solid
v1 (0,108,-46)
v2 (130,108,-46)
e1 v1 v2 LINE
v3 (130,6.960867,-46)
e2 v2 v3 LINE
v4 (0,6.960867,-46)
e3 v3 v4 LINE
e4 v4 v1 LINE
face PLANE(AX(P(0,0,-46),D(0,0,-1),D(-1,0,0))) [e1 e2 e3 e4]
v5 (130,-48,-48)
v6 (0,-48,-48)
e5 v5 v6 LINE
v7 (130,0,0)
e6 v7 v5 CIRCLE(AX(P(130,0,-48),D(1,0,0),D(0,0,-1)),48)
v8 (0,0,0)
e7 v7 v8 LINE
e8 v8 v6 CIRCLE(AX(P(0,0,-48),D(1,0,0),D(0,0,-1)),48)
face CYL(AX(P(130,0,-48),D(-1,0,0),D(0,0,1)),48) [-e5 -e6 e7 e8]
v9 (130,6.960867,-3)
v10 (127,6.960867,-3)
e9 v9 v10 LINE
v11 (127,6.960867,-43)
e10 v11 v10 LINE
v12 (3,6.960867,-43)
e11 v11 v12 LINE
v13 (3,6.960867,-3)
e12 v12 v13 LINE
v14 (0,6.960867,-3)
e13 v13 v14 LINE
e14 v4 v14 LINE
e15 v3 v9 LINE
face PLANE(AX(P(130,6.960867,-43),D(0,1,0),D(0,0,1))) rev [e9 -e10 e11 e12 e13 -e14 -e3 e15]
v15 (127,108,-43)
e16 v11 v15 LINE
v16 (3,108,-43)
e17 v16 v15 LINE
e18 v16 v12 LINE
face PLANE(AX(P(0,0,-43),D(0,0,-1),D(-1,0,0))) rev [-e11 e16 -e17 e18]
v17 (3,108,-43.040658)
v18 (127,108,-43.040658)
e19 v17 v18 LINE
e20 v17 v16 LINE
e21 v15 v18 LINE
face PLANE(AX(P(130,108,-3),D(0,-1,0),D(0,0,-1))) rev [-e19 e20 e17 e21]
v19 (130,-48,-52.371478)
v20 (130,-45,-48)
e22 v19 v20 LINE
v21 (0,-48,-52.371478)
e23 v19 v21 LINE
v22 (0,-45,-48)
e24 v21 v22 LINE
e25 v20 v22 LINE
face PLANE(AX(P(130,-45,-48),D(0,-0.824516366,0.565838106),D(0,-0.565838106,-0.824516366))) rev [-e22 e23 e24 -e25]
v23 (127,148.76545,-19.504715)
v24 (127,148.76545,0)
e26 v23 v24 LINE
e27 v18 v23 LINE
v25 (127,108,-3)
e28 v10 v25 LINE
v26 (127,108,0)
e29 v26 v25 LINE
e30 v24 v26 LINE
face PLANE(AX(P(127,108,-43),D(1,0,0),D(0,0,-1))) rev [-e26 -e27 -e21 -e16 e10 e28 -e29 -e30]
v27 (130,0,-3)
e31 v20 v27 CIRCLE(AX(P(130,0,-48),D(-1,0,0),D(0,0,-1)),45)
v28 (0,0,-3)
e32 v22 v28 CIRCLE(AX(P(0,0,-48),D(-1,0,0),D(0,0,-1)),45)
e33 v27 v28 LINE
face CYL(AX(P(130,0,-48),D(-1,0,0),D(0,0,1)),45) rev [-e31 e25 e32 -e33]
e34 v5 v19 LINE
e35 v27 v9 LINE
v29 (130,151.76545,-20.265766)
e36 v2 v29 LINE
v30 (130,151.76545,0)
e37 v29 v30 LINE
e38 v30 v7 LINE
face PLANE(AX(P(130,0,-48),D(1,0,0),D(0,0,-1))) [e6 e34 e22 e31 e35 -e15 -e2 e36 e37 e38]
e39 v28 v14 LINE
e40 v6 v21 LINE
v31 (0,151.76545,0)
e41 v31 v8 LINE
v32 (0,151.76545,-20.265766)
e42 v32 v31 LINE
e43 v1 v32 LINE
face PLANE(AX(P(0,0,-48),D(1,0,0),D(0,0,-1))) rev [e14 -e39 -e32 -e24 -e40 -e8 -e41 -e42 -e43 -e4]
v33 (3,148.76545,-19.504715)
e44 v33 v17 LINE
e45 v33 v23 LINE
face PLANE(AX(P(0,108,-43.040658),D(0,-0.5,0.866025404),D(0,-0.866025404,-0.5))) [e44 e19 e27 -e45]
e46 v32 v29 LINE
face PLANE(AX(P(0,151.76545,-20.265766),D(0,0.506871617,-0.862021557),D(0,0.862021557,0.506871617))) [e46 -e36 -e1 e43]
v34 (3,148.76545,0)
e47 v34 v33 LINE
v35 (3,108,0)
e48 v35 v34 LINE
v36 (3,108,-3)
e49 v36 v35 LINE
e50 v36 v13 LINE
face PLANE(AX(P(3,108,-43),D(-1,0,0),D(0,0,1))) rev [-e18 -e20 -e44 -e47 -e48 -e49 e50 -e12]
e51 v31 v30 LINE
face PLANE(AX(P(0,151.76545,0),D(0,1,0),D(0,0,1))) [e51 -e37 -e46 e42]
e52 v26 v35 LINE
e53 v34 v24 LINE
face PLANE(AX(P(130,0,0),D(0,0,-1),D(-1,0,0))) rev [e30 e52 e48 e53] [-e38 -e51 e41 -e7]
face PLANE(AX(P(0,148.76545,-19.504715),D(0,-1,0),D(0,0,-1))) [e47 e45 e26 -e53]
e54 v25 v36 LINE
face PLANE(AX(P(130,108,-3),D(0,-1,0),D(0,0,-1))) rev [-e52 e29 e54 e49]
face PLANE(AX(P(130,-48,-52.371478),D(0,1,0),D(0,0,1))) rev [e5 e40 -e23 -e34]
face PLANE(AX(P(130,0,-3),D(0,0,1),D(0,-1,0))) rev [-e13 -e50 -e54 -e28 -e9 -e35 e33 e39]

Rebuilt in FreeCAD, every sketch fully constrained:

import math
import FreeCAD as App
import Part
import Sketcher
Q = App.Units.Quantity

doc = App.newDocument("Part")
body = doc.addObject("PartDesign::Body", "Body")

sketch1 = body.newObject("Sketcher::SketchObject", "Sketch")
sketch1.AttachmentSupport = (doc.getObject("YZ_Plane"), [""])
sketch1.MapMode = "FlatFace"
sketch1.addGeometry([
    Part.LineSegment(App.Vector(108, 0, 0), App.Vector(0, 0, 0)),
    Part.ArcOfCircle(Part.Circle(App.Vector(0, -48, 0), App.Vector(0, 0, 1), 48), math.radians(90), math.radians(180)),
    Part.LineSegment(App.Vector(-48, -48, 0), App.Vector(-48, -52.4, 0)),
    Part.LineSegment(App.Vector(-48, -52.4, 0), App.Vector(-45, -48, 0)),
    Part.ArcOfCircle(Part.Circle(App.Vector(0, -48, 0), App.Vector(0, 0, 1), 45), math.radians(90), math.radians(180)),
    Part.LineSegment(App.Vector(0, -3, 0), App.Vector(108, -3, 0)),
    Part.LineSegment(App.Vector(108, -3, 0), App.Vector(108, 0, 0)),
], False)
sketch1.addConstraint([
    Sketcher.Constraint("Tangent", 0, 2, 1, 1),
    Sketcher.Constraint("Tangent", 1, 2, 2, 1),
    Sketcher.Constraint("Coincident", 2, 2, 3, 1),
    Sketcher.Constraint("Coincident", 3, 2, 4, 2),
    Sketcher.Constraint("Tangent", 4, 1, 5, 1),
    Sketcher.Constraint("Coincident", 5, 2, 6, 1),
    Sketcher.Constraint("Coincident", 6, 2, 0, 1),
    Sketcher.Constraint("Horizontal", 0),
    Sketcher.Constraint("Vertical", 2),
    Sketcher.Constraint("Horizontal", 5),
    Sketcher.Constraint("Vertical", 6),
    Sketcher.Constraint("Coincident", 0, 2, -1, 1),
    Sketcher.Constraint("Coincident", 4, 3, 1, 3),
    Sketcher.Constraint("Horizontal", 1, 2, 3, 2),
    Sketcher.Constraint("Radius", 1, 48.0),
    Sketcher.Constraint("Radius", 4, 45.0),
    Sketcher.Constraint("DistanceX", 0, 2, 0, 1, 108.0),
    Sketcher.Constraint("DistanceY", 2, 2, 2, 1, 4.371478),
])
pad1 = body.newObject("PartDesign::Pad", "Pad")
pad1.Profile = sketch1
pad1.Length = 130

sketch2 = body.newObject("Sketcher::SketchObject", "Sketch001")
sketch2.AttachmentSupport = (doc.getObject("XY_Plane"), [""])
sketch2.MapMode = "FlatFace"
sketch2.AttachmentOffset = App.Placement(App.Vector(0, 0, -3), App.Rotation())
sketch2.addGeometry([
    Part.LineSegment(App.Vector(130, 108, 0), App.Vector(130, 7, 0)),
    Part.LineSegment(App.Vector(130, 7, 0), App.Vector(127, 7, 0)),
    Part.LineSegment(App.Vector(127, 7, 0), App.Vector(127, 108, 0)),
    Part.LineSegment(App.Vector(127, 108, 0), App.Vector(130, 108, 0)),
    Part.LineSegment(App.Vector(3, 108, 0), App.Vector(3, 7, 0)),
    Part.LineSegment(App.Vector(3, 7, 0), App.Vector(0, 7, 0)),
    Part.LineSegment(App.Vector(0, 7, 0), App.Vector(0, 108, 0)),
    Part.LineSegment(App.Vector(0, 108, 0), App.Vector(3, 108, 0)),
], False)
sketch2.addConstraint([
    Sketcher.Constraint("Coincident", 0, 2, 1, 1),
    Sketcher.Constraint("Coincident", 1, 2, 2, 1),
    Sketcher.Constraint("Coincident", 2, 2, 3, 1),
    Sketcher.Constraint("Coincident", 3, 2, 0, 1),
    Sketcher.Constraint("Coincident", 4, 2, 5, 1),
    Sketcher.Constraint("Coincident", 5, 2, 6, 1),
    Sketcher.Constraint("Coincident", 6, 2, 7, 1),
    Sketcher.Constraint("Coincident", 7, 2, 4, 1),
    Sketcher.Constraint("Vertical", 0),
    Sketcher.Constraint("Horizontal", 1),
    Sketcher.Constraint("Vertical", 2),
    Sketcher.Constraint("Horizontal", 3),
    Sketcher.Constraint("Vertical", 4),
    Sketcher.Constraint("Horizontal", 5),
    Sketcher.Constraint("Vertical", 6),
    Sketcher.Constraint("Horizontal", 7),
    Sketcher.Constraint("PointOnObject", 5, 2, -2),
    Sketcher.Constraint("Horizontal", 1, 2, 4, 2),
    Sketcher.Constraint("Horizontal", 3, 2, 6, 2),
    Sketcher.Constraint("Equal", 3, 5),
    Sketcher.Constraint("DistanceX", 1, 2, 1, 1, 3.0),
    Sketcher.Constraint("DistanceX", -1, 1, 0, 2, 130.0),
    Sketcher.Constraint("DistanceY", -1, 1, 2, 2, 108.0),
    Sketcher.Constraint("DistanceY", 0, 2, 0, 1, 101.039133),
])
pad2 = body.newObject("PartDesign::Pad", "Pad001")
pad2.Profile = sketch2
pad2.Length = 40
pad2.Reversed = True

sketch3 = body.newObject("Sketcher::SketchObject", "Sketch002")
sketch3.AttachmentSupport = (doc.getObject("XY_Plane"), [""])
sketch3.MapMode = "FlatFace"
sketch3.AttachmentOffset = App.Placement(App.Vector(0, 0, -43), App.Rotation())
sketch3.addGeometry([
    Part.LineSegment(App.Vector(130, 108, 0), App.Vector(130, 7, 0)),
    Part.LineSegment(App.Vector(130, 7, 0), App.Vector(0, 7, 0)),
    Part.LineSegment(App.Vector(0, 7, 0), App.Vector(0, 108, 0)),
    Part.LineSegment(App.Vector(0, 108, 0), App.Vector(130, 108, 0)),
], False)
sketch3.addConstraint([
    Sketcher.Constraint("Coincident", 0, 2, 1, 1),
    Sketcher.Constraint("Coincident", 1, 2, 2, 1),
    Sketcher.Constraint("Coincident", 2, 2, 3, 1),
    Sketcher.Constraint("Coincident", 3, 2, 0, 1),
    Sketcher.Constraint("Vertical", 0),
    Sketcher.Constraint("Horizontal", 1),
    Sketcher.Constraint("Vertical", 2),
    Sketcher.Constraint("Horizontal", 3),
    Sketcher.Constraint("PointOnObject", 1, 2, -2),
    Sketcher.Constraint("DistanceX", 1, 2, 1, 1, 130.0),
    Sketcher.Constraint("DistanceY", -1, 1, 2, 2, 108.0),
    Sketcher.Constraint("DistanceY", 0, 2, 0, 1, 101.039133),
])
pad3 = body.newObject("PartDesign::Pad", "Pad002")
pad3.Profile = sketch3
pad3.Length = 3
pad3.Reversed = True

sketch4 = body.newObject("Sketcher::SketchObject", "Sketch003")
sketch4.AttachmentSupport = (doc.getObject("YZ_Plane"), [""])
sketch4.MapMode = "FlatFace"
sketch4.AttachmentOffset = App.Placement(App.Vector(0, 0, 130), App.Rotation())
sketch4.addGeometry([
    Part.LineSegment(App.Vector(148.8, -19.5, 0), App.Vector(108, -43, 0)),
    Part.LineSegment(App.Vector(108, -43, 0), App.Vector(108, -46, 0)),
    Part.LineSegment(App.Vector(108, -46, 0), App.Vector(151.8, -20.3, 0)),
    Part.LineSegment(App.Vector(151.8, -20.3, 0), App.Vector(151.8, 0, 0)),
    Part.LineSegment(App.Vector(151.8, 0, 0), App.Vector(148.8, 0, 0)),
    Part.LineSegment(App.Vector(148.8, 0, 0), App.Vector(148.8, -19.5, 0)),
], False)
sketch4.addConstraint([
    Sketcher.Constraint("Coincident", 0, 2, 1, 1),
    Sketcher.Constraint("Coincident", 1, 2, 2, 1),
    Sketcher.Constraint("Coincident", 2, 2, 3, 1),
    Sketcher.Constraint("Coincident", 3, 2, 4, 1),
    Sketcher.Constraint("Coincident", 4, 2, 5, 1),
    Sketcher.Constraint("Coincident", 5, 2, 0, 1),
    Sketcher.Constraint("Vertical", 1),
    Sketcher.Constraint("Vertical", 3),
    Sketcher.Constraint("Horizontal", 4),
    Sketcher.Constraint("Vertical", 5),
    Sketcher.Constraint("PointOnObject", 3, 2, -1),
    Sketcher.Constraint("DistanceX", 4, 2, 4, 1, 3.0),
    Sketcher.Constraint("Angle", 0, Q("-150 deg")),
    Sketcher.Constraint("DistanceX", -1, 1, 0, 2, 108.0),
    Sketcher.Constraint("DistanceY", 1, 2, -1, 1, 46.0),
    Sketcher.Constraint("DistanceY", 1, 2, 1, 1, 2.959342),
    Sketcher.Constraint("DistanceY", 3, 1, 3, 2, 20.265766),
    Sketcher.Constraint("DistanceY", 5, 2, 5, 1, 19.504715),
])
pad4 = body.newObject("PartDesign::Pad", "Pad003")
pad4.Profile = sketch4
pad4.Length = 130
pad4.Reversed = True

sketch5 = body.newObject("Sketcher::SketchObject", "Sketch004")
sketch5.AttachmentSupport = (doc.getObject("YZ_Plane"), [""])
sketch5.MapMode = "FlatFace"
sketch5.AttachmentOffset = App.Placement(App.Vector(0, 0, 130), App.Rotation())
sketch5.addGeometry([
    Part.LineSegment(App.Vector(108, 0, 0), App.Vector(108, -43, 0)),
    Part.LineSegment(App.Vector(108, -43, 0), App.Vector(149, -20, 0)),
    Part.LineSegment(App.Vector(149, -20, 0), App.Vector(149, 0, 0)),
    Part.LineSegment(App.Vector(149, 0, 0), App.Vector(108, 0, 0)),
], False)
sketch5.addConstraint([
    Sketcher.Constraint("Coincident", 0, 2, 1, 1),
    Sketcher.Constraint("Coincident", 1, 2, 2, 1),
    Sketcher.Constraint("Coincident", 2, 2, 3, 1),
    Sketcher.Constraint("Coincident", 3, 2, 0, 1),
    Sketcher.Constraint("Vertical", 0),
    Sketcher.Constraint("Vertical", 2),
    Sketcher.Constraint("Horizontal", 3),
    Sketcher.Constraint("PointOnObject", 2, 2, -1),
    Sketcher.Constraint("Angle", 1, Q("30 deg")),
    Sketcher.Constraint("DistanceX", -1, 1, 0, 2, 108.0),
    Sketcher.Constraint("DistanceX", 3, 2, 3, 1, 40.76545),
    Sketcher.Constraint("DistanceY", 0, 2, 0, 1, 43.040658),
])
pad5 = body.newObject("PartDesign::Pad", "Pad004")
pad5.Profile = sketch5
pad5.Length = 3
pad5.Reversed = True

sketch6 = body.newObject("Sketcher::SketchObject", "Sketch005")
sketch6.AttachmentSupport = (doc.getObject("YZ_Plane"), [""])
sketch6.MapMode = "FlatFace"
sketch6.addGeometry([
    Part.LineSegment(App.Vector(108, -43, 0), App.Vector(108, 0, 0)),
    Part.LineSegment(App.Vector(108, 0, 0), App.Vector(149, 0, 0)),
    Part.LineSegment(App.Vector(149, 0, 0), App.Vector(149, -20, 0)),
    Part.LineSegment(App.Vector(149, -20, 0), App.Vector(108, -43, 0)),
], False)
sketch6.addConstraint([
    Sketcher.Constraint("Coincident", 0, 2, 1, 1),
    Sketcher.Constraint("Coincident", 1, 2, 2, 1),
    Sketcher.Constraint("Coincident", 2, 2, 3, 1),
    Sketcher.Constraint("Coincident", 3, 2, 0, 1),
    Sketcher.Constraint("Vertical", 0),
    Sketcher.Constraint("Horizontal", 1),
    Sketcher.Constraint("Vertical", 2),
    Sketcher.Constraint("PointOnObject", 0, 2, -1),
    Sketcher.Constraint("Angle", 3, Q("-150 deg")),
    Sketcher.Constraint("DistanceX", -1, 1, 0, 2, 108.0),
    Sketcher.Constraint("DistanceX", 1, 1, 1, 2, 40.76545),
    Sketcher.Constraint("DistanceY", 0, 1, 0, 2, 43.040658),
])
pad6 = body.newObject("PartDesign::Pad", "Pad005")
pad6.Profile = sketch6
pad6.Length = 3

doc.recompute()
